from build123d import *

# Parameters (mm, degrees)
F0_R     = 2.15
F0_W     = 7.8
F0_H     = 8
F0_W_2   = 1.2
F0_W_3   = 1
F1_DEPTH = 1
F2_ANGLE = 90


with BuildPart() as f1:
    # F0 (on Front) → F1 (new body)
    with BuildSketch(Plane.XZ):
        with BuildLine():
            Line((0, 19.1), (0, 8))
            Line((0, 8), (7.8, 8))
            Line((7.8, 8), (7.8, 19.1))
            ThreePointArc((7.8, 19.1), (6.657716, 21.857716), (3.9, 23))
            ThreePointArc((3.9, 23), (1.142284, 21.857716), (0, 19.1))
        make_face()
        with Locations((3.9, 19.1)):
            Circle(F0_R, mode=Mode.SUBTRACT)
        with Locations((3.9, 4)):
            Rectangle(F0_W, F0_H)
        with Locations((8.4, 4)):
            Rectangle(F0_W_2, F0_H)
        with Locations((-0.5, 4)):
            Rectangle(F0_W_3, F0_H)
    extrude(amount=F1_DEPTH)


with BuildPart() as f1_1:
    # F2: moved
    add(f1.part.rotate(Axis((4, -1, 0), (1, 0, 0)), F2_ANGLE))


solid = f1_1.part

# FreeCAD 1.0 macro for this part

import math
import FreeCAD as App
import Part
import Sketcher

V = App.Vector

doc = App.newDocument("Part")
body = doc.addObject("PartDesign::Body", "Body")

sketch1 = body.newObject("Sketcher::SketchObject", "Sketch")
sketch1.AttachmentSupport = (doc.getObject("XZ_Plane"), [""])
sketch1.MapMode = "FlatFace"
sketch1.addGeometry([
    Part.LineSegment(V(0, 19.1, 0), V(0, 8, 0)),
    Part.LineSegment(V(0, 8, 0), V(-1, 8, 0)),
    Part.LineSegment(V(-1, 8, 0), V(-1, 0, 0)),
    Part.LineSegment(V(-1, 0, 0), V(9, 0, 0)),
    Part.LineSegment(V(9, 0, 0), V(9, 8, 0)),
    Part.LineSegment(V(9, 8, 0), V(7.8, 8, 0)),
    Part.LineSegment(V(7.8, 8, 0), V(7.8, 19.1, 0)),
    Part.ArcOfCircle(Part.Circle(V(3.899998, 19.099998, 0), V(0, 0, 1), 3.900002), math.radians(0.000022), math.radians(89.999978)),
    Part.ArcOfCircle(Part.Circle(V(3.900002, 19.099998, 0), V(0, 0, 1), 3.900002), math.radians(90.000022), math.radians(179.999978)),
    Part.Circle(V(3.9, 19.1, 0), V(0, 0, 1), 2.15),
], False)
sketch1.addConstraint([
    Sketcher.Constraint("Coincident", 0, 2, 1, 1),
    Sketcher.Constraint("Coincident", 1, 2, 2, 1),
    Sketcher.Constraint("Coincident", 2, 2, 3, 1),
    Sketcher.Constraint("Coincident", 3, 2, 4, 1),
    Sketcher.Constraint("Coincident", 4, 2, 5, 1),
    Sketcher.Constraint("Coincident", 5, 2, 6, 1),
    Sketcher.Constraint("Tangent", 6, 2, 7, 1),
    Sketcher.Constraint("Tangent", 7, 2, 8, 1),
    Sketcher.Constraint("Tangent", 8, 2, 0, 1),
    Sketcher.Constraint("Vertical", 0),
    Sketcher.Constraint("Horizontal", 1),
    Sketcher.Constraint("Vertical", 2),
    Sketcher.Constraint("Horizontal", 3),
    Sketcher.Constraint("Vertical", 4),
    Sketcher.Constraint("Horizontal", 5),
    Sketcher.Constraint("Vertical", 6),
    Sketcher.Constraint("Coincident", 9, 3, 7, 3),
    Sketcher.Constraint("Equal", 7, 8),
    Sketcher.Constraint("PointOnObject", 0, 2, -2),
    Sketcher.Constraint("PointOnObject", 2, 2, -1),
    Sketcher.Constraint("Horizontal", 1, 2, 4, 2),
    Sketcher.Constraint("Vertical", 9, 3, 7, 2),
    Sketcher.Constraint("Diameter", 9, 4.3),
    Sketcher.Constraint("Radius", 7, 3.900002),
    Sketcher.Constraint("DistanceX", 1, 2, 1, 1, 1.0),
    Sketcher.Constraint("DistanceX", 3, 1, 3, 2, 10.0),
    Sketcher.Constraint("DistanceY", 2, 2, 2, 1, 8.0),
    Sketcher.Constraint("DistanceY", 0, 2, 0, 1, 11.1),
])
pad1 = body.newObject("PartDesign::Pad", "Pad")
pad1.Profile = sketch1
pad1.Length = 1
body2 = doc.addObject("PartDesign::Body", "Body001")
doc.recompute()

body.Placement = App.Placement(V(0, -1, 1), App.Rotation(V(1, 0, 0), 90))
boolean = body2.newObject("PartDesign::Boolean", "Boolean")
boolean.Type = "Fuse"
boolean.addObjects([body])

doc.recompute()
